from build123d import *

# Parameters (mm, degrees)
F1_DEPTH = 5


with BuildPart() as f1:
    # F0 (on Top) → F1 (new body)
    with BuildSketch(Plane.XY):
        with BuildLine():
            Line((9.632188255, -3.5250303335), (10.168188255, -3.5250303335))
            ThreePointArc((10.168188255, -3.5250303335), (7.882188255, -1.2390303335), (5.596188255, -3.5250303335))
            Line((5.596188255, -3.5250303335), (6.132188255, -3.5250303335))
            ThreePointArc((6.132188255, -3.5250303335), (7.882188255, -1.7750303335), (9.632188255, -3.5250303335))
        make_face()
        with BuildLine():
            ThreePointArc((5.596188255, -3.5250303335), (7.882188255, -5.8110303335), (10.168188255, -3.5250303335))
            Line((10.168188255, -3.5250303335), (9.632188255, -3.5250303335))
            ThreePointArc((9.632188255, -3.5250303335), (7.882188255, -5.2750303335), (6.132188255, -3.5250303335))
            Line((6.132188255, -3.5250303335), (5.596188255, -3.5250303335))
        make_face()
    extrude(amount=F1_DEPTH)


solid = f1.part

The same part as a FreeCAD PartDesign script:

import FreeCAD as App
import Part
import Sketcher
from FreeCAD import Vector

doc = App.newDocument("Part")
body = doc.addObject("PartDesign::Body", "Body")

sketch1 = doc.addObject("Sketcher::SketchObject", "Sketch")
body.addObject(sketch1)
sketch1.AttachmentSupport = (doc.XY_Plane, [""])
sketch1.MapMode = "FlatFace"
sketch1.addGeometry(Part.Circle(Vector(7.9, -3.5, 0), Vector(0, 0, 1), 2.3), False)
sketch1.addGeometry(Part.Circle(Vector(7.9, -3.5, 0), Vector(0, 0, 1), 1.8), False)
sketch1.addConstraint(Sketcher.Constraint("Coincident", 1, 3, 0, 3))
sketch1.addConstraint(Sketcher.Constraint("Diameter", 1, 3.5))
sketch1.addConstraint(Sketcher.Constraint("Diameter", 0, 4.572))
sketch1.addConstraint(Sketcher.Constraint("DistanceX", -1, 1, 0, 3, 7.882188))
sketch1.addConstraint(Sketcher.Constraint("DistanceY", 0, 3, -1, 1, 3.52503))
pad1 = doc.addObject("PartDesign::Pad", "Pad")
body.addObject(pad1)
pad1.Profile = sketch1
pad1.Length = 5

doc.recompute()
